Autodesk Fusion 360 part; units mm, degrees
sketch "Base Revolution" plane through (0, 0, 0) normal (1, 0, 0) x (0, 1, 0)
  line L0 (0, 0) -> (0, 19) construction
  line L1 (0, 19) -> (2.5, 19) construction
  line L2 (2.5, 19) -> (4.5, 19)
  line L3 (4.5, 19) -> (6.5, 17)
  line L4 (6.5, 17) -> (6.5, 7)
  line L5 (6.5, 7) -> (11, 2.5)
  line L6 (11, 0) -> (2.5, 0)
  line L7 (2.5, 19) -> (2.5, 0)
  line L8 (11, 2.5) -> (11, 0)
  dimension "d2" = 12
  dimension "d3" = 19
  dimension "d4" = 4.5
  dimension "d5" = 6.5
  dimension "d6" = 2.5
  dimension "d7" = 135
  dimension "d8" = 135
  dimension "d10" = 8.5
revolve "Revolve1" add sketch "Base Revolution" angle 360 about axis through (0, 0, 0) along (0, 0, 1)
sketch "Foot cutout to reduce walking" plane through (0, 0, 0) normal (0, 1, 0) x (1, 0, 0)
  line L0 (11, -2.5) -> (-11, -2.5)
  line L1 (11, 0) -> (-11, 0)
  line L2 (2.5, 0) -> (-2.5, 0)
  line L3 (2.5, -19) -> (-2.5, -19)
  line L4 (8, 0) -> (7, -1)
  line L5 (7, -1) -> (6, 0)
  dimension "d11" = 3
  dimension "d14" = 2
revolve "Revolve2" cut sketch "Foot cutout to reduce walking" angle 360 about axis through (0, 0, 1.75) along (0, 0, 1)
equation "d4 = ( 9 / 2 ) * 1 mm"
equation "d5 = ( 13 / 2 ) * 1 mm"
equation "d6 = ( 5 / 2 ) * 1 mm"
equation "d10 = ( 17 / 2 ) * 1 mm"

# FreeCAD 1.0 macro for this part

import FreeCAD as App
import Part
import Sketcher
from FreeCAD import Vector
Q = App.Units.Quantity

doc = App.newDocument("Part")
body = doc.addObject("PartDesign::Body", "Body")

# Sketch on YZ plane
sketch1 = body.newObject("Sketcher::SketchObject", "Sketch")
sketch1.AttachmentSupport = (doc.getObject("YZ_Plane"), [""])
sketch1.MapMode = "FlatFace"
sketch1.addGeometry([
    Part.LineSegment(Vector(4.5, 19, 0), Vector(2.5, 19, 0)),  # 0
    Part.LineSegment(Vector(2.5, 19, 0), Vector(2.5, 0, 0)),  # 1
    Part.LineSegment(Vector(2.5, 0, 0), Vector(11, 0, 0)),  # 2
    Part.LineSegment(Vector(11, 0, 0), Vector(11, 2.5, 0)),  # 3
    Part.LineSegment(Vector(11, 2.5, 0), Vector(6.5, 7, 0)),  # 4
    Part.LineSegment(Vector(6.5, 7, 0), Vector(6.5, 17, 0)),  # 5
    Part.LineSegment(Vector(6.5, 17, 0), Vector(4.5, 19, 0)),  # 6
], False)
sketch1.addConstraint([
    Sketcher.Constraint("Coincident", 0, 2, 1, 1),
    Sketcher.Constraint("Coincident", 1, 2, 2, 1),
    Sketcher.Constraint("Coincident", 2, 2, 3, 1),
    Sketcher.Constraint("Coincident", 3, 2, 4, 1),
    Sketcher.Constraint("Coincident", 4, 2, 5, 1),
    Sketcher.Constraint("Coincident", 5, 2, 6, 1),
    Sketcher.Constraint("Coincident", 6, 2, 0, 1),
    Sketcher.Constraint("Horizontal", 0),
    Sketcher.Constraint("Vertical", 1),
    Sketcher.Constraint("Horizontal", 2),
    Sketcher.Constraint("Vertical", 3),
    Sketcher.Constraint("Vertical", 5),
    Sketcher.Constraint("PointOnObject", 1, 2, -1),
    Sketcher.Constraint("Parallel", 4, 6),
    Sketcher.Constraint("DistanceY", 1, 2, 1, 1, Q("19 mm")),
    Sketcher.Constraint("Angle", 4, Q("135 deg")),
    Sketcher.Constraint("DistanceX", 2, 1, 2, 2, Q("8.5 mm")),
    Sketcher.Constraint("DistanceY", 3, 1, 3, 2, Q("2.5 mm")),
    Sketcher.Constraint("DistanceY", 4, 2, 0, 2, Q("12 mm")),
    Sketcher.Constraint("DistanceX", -1, 1, 0, 2, Q("2.5 mm")),
    Sketcher.Constraint("DistanceX", -1, 1, 6, 2, Q("4.5 mm")),
])
revolution = body.newObject("PartDesign::Revolution", "Revolution")
revolution.Profile = sketch1
revolution.ReferenceAxis = (sketch1, ["V_Axis"])
revolution.Angle = 360

# Sketch on XZ plane
sketch2 = body.newObject("Sketcher::SketchObject", "Sketch001")
sketch2.AttachmentSupport = (doc.getObject("XZ_Plane"), [""])
sketch2.MapMode = "FlatFace"
sketch2.addGeometry([
    Part.LineSegment(Vector(7, 1, 0), Vector(8, 0, 0)),
    Part.LineSegment(Vector(8, 0, 0), Vector(6, 0, 0)),
    Part.LineSegment(Vector(6, 0, 0), Vector(7, 1, 0)),
], False)
sketch2.addConstraint([
    Sketcher.Constraint("Coincident", 0, 2, 1, 1),
    Sketcher.Constraint("Coincident", 1, 2, 2, 1),
    Sketcher.Constraint("Coincident", 2, 2, 0, 1),
    Sketcher.Constraint("Horizontal", 1),
    Sketcher.Constraint("PointOnObject", 0, 2, -1),
    Sketcher.Constraint("Perpendicular", 0, 2),
    Sketcher.Constraint("Equal", 0, 2),
    Sketcher.Constraint("DistanceX", 1, 2, 1, 1, Q("2 mm")),
    Sketcher.Constraint("DistanceX", -1, 1, 0, 2, Q("8 mm")),
])
groove = body.newObject("PartDesign::Groove", "Groove")
groove.Profile = sketch2
groove.ReferenceAxis = (sketch2, ["V_Axis"])
groove.Angle = 360

doc.recompute()
